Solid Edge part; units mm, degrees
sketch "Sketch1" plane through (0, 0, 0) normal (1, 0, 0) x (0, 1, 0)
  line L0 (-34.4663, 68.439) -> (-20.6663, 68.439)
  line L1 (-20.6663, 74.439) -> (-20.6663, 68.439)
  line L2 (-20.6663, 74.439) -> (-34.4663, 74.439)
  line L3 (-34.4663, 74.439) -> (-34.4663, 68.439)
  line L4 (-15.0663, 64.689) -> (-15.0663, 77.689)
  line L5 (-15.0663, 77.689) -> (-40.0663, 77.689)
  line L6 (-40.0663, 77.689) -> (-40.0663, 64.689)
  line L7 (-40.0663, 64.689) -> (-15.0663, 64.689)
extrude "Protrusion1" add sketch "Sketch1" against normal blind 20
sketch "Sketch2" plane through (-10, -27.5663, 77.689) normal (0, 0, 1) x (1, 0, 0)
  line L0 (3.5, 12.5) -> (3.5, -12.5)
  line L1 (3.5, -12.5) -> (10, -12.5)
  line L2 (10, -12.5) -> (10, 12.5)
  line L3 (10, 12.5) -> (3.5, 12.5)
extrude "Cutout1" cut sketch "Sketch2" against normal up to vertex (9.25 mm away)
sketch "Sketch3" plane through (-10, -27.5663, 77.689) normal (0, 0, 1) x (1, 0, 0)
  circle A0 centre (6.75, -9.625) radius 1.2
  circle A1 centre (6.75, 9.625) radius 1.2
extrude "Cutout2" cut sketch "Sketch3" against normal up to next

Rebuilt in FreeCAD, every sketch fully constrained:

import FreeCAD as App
import Part
import Sketcher
Q = App.Units.Quantity

doc = App.newDocument("Part")
params = doc.addObject("Spreadsheet::Sheet", "Params")
for row, (alias, value) in enumerate([
    ("sketch1_width", "25 mm"),
    ("sketch1_height", "13 mm"),
    ("sketch1_height2", "6 mm"),
    ("sketch1_width2", "13.8 mm"),
    ("pad1_length", "20 mm"),
    ("sketch2_height", "25 mm"),
    ("sketch2_width", "6.5 mm"),
    ("pocket1_length", "9.25 mm"),
    ("sketch3_diameter", "2.4 mm"),
    ("pocket2_length", "13 mm"),
], start=1):
    params.set(f"A{row}", alias)
    params.set(f"B{row}", "=" + value)
    params.setAlias(f"B{row}", alias)

body = doc.addObject("PartDesign::Body", "Body")

# Sketch on YZ plane
sketch1 = doc.addObject("Sketcher::SketchObject", "Sketch")
body.addObject(sketch1)
sketch1.AttachmentSupport = (doc.YZ_Plane, [""])
sketch1.MapMode = "FlatFace"
sketch1.addGeometry([
    Part.LineSegment(App.Vector(-40, 65, 0), App.Vector(-15, 65, 0)),  # 0
    Part.LineSegment(App.Vector(-15, 65, 0), App.Vector(-15, 78, 0)),  # 1
    Part.LineSegment(App.Vector(-15, 78, 0), App.Vector(-40, 78, 0)),  # 2
    Part.LineSegment(App.Vector(-40, 78, 0), App.Vector(-40, 65, 0)),  # 3
    Part.LineSegment(App.Vector(-21, 68, 0), App.Vector(-34, 68, 0)),  # 4
    Part.LineSegment(App.Vector(-34, 68, 0), App.Vector(-34, 74, 0)),  # 5
    Part.LineSegment(App.Vector(-34, 74, 0), App.Vector(-21, 74, 0)),  # 6
    Part.LineSegment(App.Vector(-21, 74, 0), App.Vector(-21, 68, 0)),  # 7
], False)
sketch1.addConstraint([
    Sketcher.Constraint("Coincident", 0, 2, 1, 1),
    Sketcher.Constraint("Coincident", 1, 2, 2, 1),
    Sketcher.Constraint("Coincident", 2, 2, 3, 1),
    Sketcher.Constraint("Coincident", 3, 2, 0, 1),
    Sketcher.Constraint("Coincident", 4, 2, 5, 1),
    Sketcher.Constraint("Coincident", 5, 2, 6, 1),
    Sketcher.Constraint("Coincident", 6, 2, 7, 1),
    Sketcher.Constraint("Coincident", 7, 2, 4, 1),
    Sketcher.Constraint("Horizontal", 0),
    Sketcher.Constraint("Vertical", 1),
    Sketcher.Constraint("Horizontal", 2),
    Sketcher.Constraint("Vertical", 3),
    Sketcher.Constraint("Horizontal", 4),
    Sketcher.Constraint("Vertical", 5),
    Sketcher.Constraint("Horizontal", 6),
    Sketcher.Constraint("Vertical", 7),
    Sketcher.Constraint("DistanceX", 0, 1, 0, 2, Q("25 mm")),
    Sketcher.Constraint("DistanceY", 1, 1, 1, 2, Q("13 mm")),
    Sketcher.Constraint("DistanceY", 5, 1, 5, 2, Q("6 mm")),
    Sketcher.Constraint("DistanceX", 4, 2, 4, 1, Q("13.8 mm")),
    Sketcher.Constraint("DistanceX", 3, 2, 4, 2, Q("5.6 mm")),
    Sketcher.Constraint("DistanceY", 3, 2, 4, 2, Q("3.75 mm")),
    Sketcher.Constraint("DistanceY", -1, 1, 0, 2, Q("64.689 mm")),
    Sketcher.Constraint("DistanceX", 0, 2, -1, 1, Q("15.0663 mm")),
])
sketch1.setExpression("Constraints[16]", "Params.sketch1_width")
sketch1.setExpression("Constraints[17]", "Params.sketch1_height")
sketch1.setExpression("Constraints[18]", "Params.sketch1_height2")
sketch1.setExpression("Constraints[19]", "Params.sketch1_width2")
pad1 = doc.addObject("PartDesign::Pad", "Pad")
body.addObject(pad1)
pad1.Profile = sketch1
pad1.setExpression("Length", "Params.pad1_length")
pad1.Reversed = True

# Sketch on XY plane
sketch2 = doc.addObject("Sketcher::SketchObject", "Sketch001")
body.addObject(sketch2)
sketch2.AttachmentSupport = (doc.XY_Plane, [""])
sketch2.MapMode = "FlatFace"
sketch2.AttachmentOffset = App.Placement(App.Vector(0, 0, 77.689), App.Rotation())
sketch2.addGeometry([
    Part.LineSegment(App.Vector(0, -15, 0), App.Vector(-6, -15, 0)),
    Part.LineSegment(App.Vector(-6, -15, 0), App.Vector(-6, -40, 0)),
    Part.LineSegment(App.Vector(-6, -40, 0), App.Vector(0, -40, 0)),
    Part.LineSegment(App.Vector(0, -40, 0), App.Vector(0, -15, 0)),
], False)
sketch2.addConstraint([
    Sketcher.Constraint("Coincident", 0, 2, 1, 1),
    Sketcher.Constraint("Coincident", 1, 2, 2, 1),
    Sketcher.Constraint("Coincident", 2, 2, 3, 1),
    Sketcher.Constraint("Coincident", 3, 2, 0, 1),
    Sketcher.Constraint("Horizontal", 0),
    Sketcher.Constraint("Vertical", 1),
    Sketcher.Constraint("Horizontal", 2),
    Sketcher.Constraint("Vertical", 3),
    Sketcher.Constraint("PointOnObject", 2, 2, -2),
    Sketcher.Constraint("DistanceY", 1, 2, 1, 1, Q("25 mm")),
    Sketcher.Constraint("DistanceX", 0, 2, 0, 1, Q("6.5 mm")),
    Sketcher.Constraint("DistanceY", 0, 2, -1, 1, Q("15.0663 mm")),
])
sketch2.setExpression("Constraints[9]", "Params.sketch2_height")
sketch2.setExpression("Constraints[10]", "Params.sketch2_width")
pocket1 = doc.addObject("PartDesign::Pocket", "Pocket")
body.addObject(pocket1)
pocket1.Profile = sketch2
pocket1.setExpression("Length", "Params.pocket1_length")

# Sketch on XY plane
sketch3 = doc.addObject("Sketcher::SketchObject", "Sketch002")
body.addObject(sketch3)
sketch3.AttachmentSupport = (doc.XY_Plane, [""])
sketch3.MapMode = "FlatFace"
sketch3.AttachmentOffset = App.Placement(App.Vector(0, 0, 77.689), App.Rotation())
sketch3.addGeometry([
    Part.Circle(App.Vector(-3.2, -37.2, 0), App.Vector(0, 0, 1), 1.2),
    Part.Circle(App.Vector(-3.2, -17.9, 0), App.Vector(0, 0, 1), 1.2),
], False)
sketch3.addConstraint([
    Sketcher.Constraint("Equal", 0, 1),
    Sketcher.Constraint("Vertical", 0, 3, 1, 3),
    Sketcher.Constraint("Diameter", 0, Q("2.4 mm")),
    Sketcher.Constraint("DistanceX", 0, 3, -1, 1, Q("3.25 mm")),
    Sketcher.Constraint("DistanceY", 0, 3, 1, 3, Q("19.25 mm")),
    Sketcher.Constraint("DistanceY", 0, 3, -1, 1, Q("37.1913 mm")),
])
sketch3.setExpression("Constraints[2]", "Params.sketch3_diameter")
pocket2 = doc.addObject("PartDesign::Pocket", "Pocket001")
body.addObject(pocket2)
pocket2.Profile = sketch3
pocket2.setExpression("Length", "Params.pocket2_length")

doc.recompute()
